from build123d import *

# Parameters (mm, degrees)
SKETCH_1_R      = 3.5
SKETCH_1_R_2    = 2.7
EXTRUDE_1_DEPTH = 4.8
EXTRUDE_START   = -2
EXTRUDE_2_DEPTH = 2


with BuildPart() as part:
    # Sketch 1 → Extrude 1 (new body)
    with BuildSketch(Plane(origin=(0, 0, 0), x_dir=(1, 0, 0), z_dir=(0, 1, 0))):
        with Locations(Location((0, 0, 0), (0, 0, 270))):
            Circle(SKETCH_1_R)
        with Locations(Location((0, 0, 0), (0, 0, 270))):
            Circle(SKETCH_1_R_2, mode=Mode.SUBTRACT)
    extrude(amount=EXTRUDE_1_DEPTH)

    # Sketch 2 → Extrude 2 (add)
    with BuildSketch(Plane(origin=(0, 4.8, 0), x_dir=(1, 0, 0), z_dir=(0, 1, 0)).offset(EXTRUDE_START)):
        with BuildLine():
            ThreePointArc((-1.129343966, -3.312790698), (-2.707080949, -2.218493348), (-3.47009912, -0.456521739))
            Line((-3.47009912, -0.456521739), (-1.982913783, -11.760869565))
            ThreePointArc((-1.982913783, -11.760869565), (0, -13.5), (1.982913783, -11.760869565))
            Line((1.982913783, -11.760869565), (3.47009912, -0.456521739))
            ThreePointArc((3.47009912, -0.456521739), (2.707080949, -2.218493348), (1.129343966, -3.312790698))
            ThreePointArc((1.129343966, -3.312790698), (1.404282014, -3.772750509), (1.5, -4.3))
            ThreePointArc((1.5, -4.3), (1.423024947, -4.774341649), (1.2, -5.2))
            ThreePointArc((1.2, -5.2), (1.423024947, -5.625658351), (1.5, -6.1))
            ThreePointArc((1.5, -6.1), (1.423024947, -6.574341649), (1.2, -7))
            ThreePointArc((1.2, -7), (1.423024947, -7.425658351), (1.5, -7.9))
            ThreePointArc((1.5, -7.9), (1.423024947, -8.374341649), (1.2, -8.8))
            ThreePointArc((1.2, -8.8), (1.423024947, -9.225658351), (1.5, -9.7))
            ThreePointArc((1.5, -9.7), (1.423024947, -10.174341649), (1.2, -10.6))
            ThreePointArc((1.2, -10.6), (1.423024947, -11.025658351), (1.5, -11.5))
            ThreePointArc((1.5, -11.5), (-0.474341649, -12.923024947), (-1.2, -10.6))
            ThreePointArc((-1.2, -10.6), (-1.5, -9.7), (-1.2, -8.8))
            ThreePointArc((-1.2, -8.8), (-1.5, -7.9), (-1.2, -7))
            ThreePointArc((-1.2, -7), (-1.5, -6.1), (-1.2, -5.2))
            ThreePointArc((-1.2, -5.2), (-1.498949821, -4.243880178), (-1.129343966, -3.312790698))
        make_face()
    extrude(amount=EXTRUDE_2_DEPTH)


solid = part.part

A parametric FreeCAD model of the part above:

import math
import FreeCAD as App
import Part
import Sketcher

V = App.Vector
Q = App.Units.Quantity

doc = App.newDocument("Part")
params = doc.addObject("Spreadsheet::Sheet", "Params")
for row, (alias, value) in enumerate([
    ("sketch1_diameter", "7 mm"),
    ("sketch1_diameter2", "5.4 mm"),
    ("pad1_length", "4.8 mm"),
    ("sketch2_radius", "2 mm"),
    ("sketch2_radius2", "3.5 mm"),
    ("sketch2_radius3", "1.5 mm"),
    ("pad2_length", "2 mm"),
], start=1):
    params.set(f"A{row}", alias)
    params.set(f"B{row}", "=" + value)
    params.setAlias(f"B{row}", alias)

body = doc.addObject("PartDesign::Body", "Body")

# Sketch on XZ plane
sketch1 = body.newObject("Sketcher::SketchObject", "Sketch")
sketch1.AttachmentSupport = (doc.getObject("XZ_Plane"), [""])
sketch1.MapMode = "FlatFace"
sketch1.addGeometry([
    Part.Circle(V(0, 0, 0), V(0, 0, 1), 3.5),
    Part.Circle(V(0, 0, 0), V(0, 0, 1), 2.7),
], False)
sketch1.addConstraint([
    Sketcher.Constraint("Coincident", 0, 3, -1, 1),
    Sketcher.Constraint("Coincident", 1, 3, -1, 1),
    Sketcher.Constraint("Diameter", 0, Q("7 mm")),
    Sketcher.Constraint("Diameter", 1, Q("5.4 mm")),
])
sketch1.setExpression("Constraints[2]", "Params.sketch1_diameter")
sketch1.setExpression("Constraints[3]", "Params.sketch1_diameter2")
pad1 = body.newObject("PartDesign::Pad", "Pad")
pad1.Profile = sketch1
pad1.setExpression("Length", "Params.pad1_length")
pad1.Reversed = True

# Sketch on XZ plane
sketch2 = body.newObject("Sketcher::SketchObject", "Sketch001")
sketch2.AttachmentSupport = (doc.getObject("XZ_Plane"), [""])
sketch2.MapMode = "FlatFace"
sketch2.AttachmentOffset = App.Placement(V(0, 0, -2.8), App.Rotation())
sketch2.addGeometry([
    Part.ArcOfCircle(Part.Circle(V(0, 0, 0), V(0, 0, 1), 3.5), math.radians(109), math.radians(173)),  # 0
    Part.LineSegment(V(-3.5, 0.5, 0), V(-2, 11.8, 0)),  # 1
    Part.ArcOfCircle(Part.Circle(V(0, 11.5, 0), V(0, 0, 1), 2), math.radians(7), math.radians(173)),  # 2
    Part.LineSegment(V(2, 11.8, 0), V(3.5, 0.5, 0)),  # 3
    Part.ArcOfCircle(Part.Circle(V(0, 0, 0), V(0, 0, 1), 3.5), math.radians(7), math.radians(71)),  # 4
    Part.ArcOfCircle(Part.Circle(V(0, 4.3, 0), V(0, 0, 1), 1.5), math.radians(-41), math.radians(0)),  # 5
    Part.ArcOfCircle(Part.Circle(V(0, 4.3, 0), V(0, 0, 1), 1.5), math.radians(0), math.radians(37)),  # 6
    Part.ArcOfCircle(Part.Circle(V(0, 6.1, 0), V(0, 0, 1), 1.5), math.radians(-37), math.radians(0)),  # 7
    Part.ArcOfCircle(Part.Circle(V(0, 6.1, 0), V(0, 0, 1), 1.5), math.radians(0), math.radians(37)),  # 8
    Part.ArcOfCircle(Part.Circle(V(0, 7.9, 0), V(0, 0, 1), 1.5), math.radians(-37), math.radians(0)),  # 9
    Part.ArcOfCircle(Part.Circle(V(0, 7.9, 0), V(0, 0, 1), 1.5), math.radians(0), math.radians(37)),  # 10
    Part.ArcOfCircle(Part.Circle(V(0, 9.7, 0), V(0, 0, 1), 1.5), math.radians(-37), math.radians(0)),  # 11
    Part.ArcOfCircle(Part.Circle(V(0, 9.7, 0), V(0, 0, 1), 1.5), math.radians(0), math.radians(37)),  # 12
    Part.ArcOfCircle(Part.Circle(V(0, 11.5, 0), V(0, 0, 1), 1.5), math.radians(-37), math.radians(0)),  # 13
    Part.ArcOfCircle(Part.Circle(V(0, 11.5, 0), V(0, 0, 1), 1.5), math.radians(0), math.radians(217)),  # 14
    Part.ArcOfCircle(Part.Circle(V(0, 9.7, 0), V(0, 0, 1), 1.5), math.radians(143), math.radians(217)),  # 15
    Part.ArcOfCircle(Part.Circle(V(0, 7.9, 0), V(0, 0, 1), 1.5), math.radians(143), math.radians(217)),  # 16
    Part.ArcOfCircle(Part.Circle(V(0, 6.1, 0), V(0, 0, 1), 1.5), math.radians(143), math.radians(217)),  # 17
    Part.ArcOfCircle(Part.Circle(V(0, 4.3, 0), V(0, 0, 1), 1.5), math.radians(143), math.radians(221)),  # 18
], False)
sketch2.addConstraint([
    Sketcher.Constraint("Tangent", 0, 2, 1, 1),
    Sketcher.Constraint("Tangent", 1, 2, 2, 2),
    Sketcher.Constraint("Tangent", 2, 1, 3, 1),
    Sketcher.Constraint("Tangent", 3, 2, 4, 1),
    Sketcher.Constraint("Coincident", 4, 2, 5, 1),
    Sketcher.Constraint("Tangent", 5, 2, 6, 1),
    Sketcher.Constraint("Coincident", 6, 2, 7, 1),
    Sketcher.Constraint("Tangent", 7, 2, 8, 1),
    Sketcher.Constraint("Coincident", 8, 2, 9, 1),
    Sketcher.Constraint("Tangent", 9, 2, 10, 1),
    Sketcher.Constraint("Coincident", 10, 2, 11, 1),
    Sketcher.Constraint("Tangent", 11, 2, 12, 1),
    Sketcher.Constraint("Coincident", 12, 2, 13, 1),
    Sketcher.Constraint("Tangent", 13, 2, 14, 1),
    Sketcher.Constraint("Coincident", 14, 2, 15, 1),
    Sketcher.Constraint("Coincident", 15, 2, 16, 1),
    Sketcher.Constraint("Coincident", 16, 2, 17, 1),
    Sketcher.Constraint("Coincident", 17, 2, 18, 1),
    Sketcher.Constraint("Coincident", 18, 2, 0, 1),
    Sketcher.Constraint("Coincident", 0, 3, -1, 1),
    Sketcher.Constraint("Coincident", 4, 3, -1, 1),
    Sketcher.Constraint("Coincident", 13, 3, 2, 3),
    Sketcher.Constraint("Coincident", 15, 3, 11, 3),
    Sketcher.Constraint("Coincident", 16, 3, 9, 3),
    Sketcher.Constraint("Coincident", 17, 3, 7, 3),
    Sketcher.Constraint("Coincident", 18, 3, 5, 3),
    Sketcher.Constraint("Equal", 0, 4),
    Sketcher.Constraint("Equal", 5, 6),
    Sketcher.Constraint("Equal", 6, 7),
    Sketcher.Constraint("Equal", 7, 8),
    Sketcher.Constraint("Equal", 8, 9),
    Sketcher.Constraint("Equal", 9, 10),
    Sketcher.Constraint("Equal", 10, 11),
    Sketcher.Constraint("Equal", 11, 12),
    Sketcher.Constraint("Equal", 12, 13),
    Sketcher.Constraint("Equal", 13, 14),
    Sketcher.Constraint("Equal", 14, 15),
    Sketcher.Constraint("Equal", 15, 16),
    Sketcher.Constraint("Equal", 16, 17),
    Sketcher.Constraint("Equal", 17, 18),
    Sketcher.Constraint("Symmetric", 12, 2, 14, 2, -2),
    Sketcher.Constraint("Symmetric", 8, 2, 16, 2, -2),
    Sketcher.Constraint("PointOnObject", 5, 3, -2),
    Sketcher.Constraint("Horizontal", 18, 3, 5, 2),
    Sketcher.Constraint("Horizontal", 17, 3, 7, 2),
    Sketcher.Constraint("Horizontal", 16, 3, 9, 2),
    Sketcher.Constraint("Horizontal", 15, 3, 11, 2),
    Sketcher.Constraint("Horizontal", 14, 3, 13, 2),
    Sketcher.Constraint("Vertical", 6, 2, 8, 2),
    Sketcher.Constraint("Vertical", 8, 2, 10, 2),
    Sketcher.Constraint("Vertical", 10, 2, 12, 2),
    Sketcher.Constraint("Radius", 2, Q("2 mm")),
    Sketcher.Constraint("Radius", 0, Q("3.5 mm")),
    Sketcher.Constraint("Radius", 5, Q("1.5 mm")),
    Sketcher.Constraint("DistanceY", -1, 1, 8, 2, Q("7 mm")),
    Sketcher.Constraint("DistanceY", -1, 1, 2, 3, Q("11.5 mm")),
])
sketch2.setExpression("Constraints[51]", "Params.sketch2_radius")
sketch2.setExpression("Constraints[52]", "Params.sketch2_radius2")
sketch2.setExpression("Constraints[53]", "Params.sketch2_radius3")
pad2 = body.newObject("PartDesign::Pad", "Pad001")
pad2.Profile = sketch2
pad2.setExpression("Length", "Params.pad2_length")
pad2.Reversed = True

doc.recompute()
